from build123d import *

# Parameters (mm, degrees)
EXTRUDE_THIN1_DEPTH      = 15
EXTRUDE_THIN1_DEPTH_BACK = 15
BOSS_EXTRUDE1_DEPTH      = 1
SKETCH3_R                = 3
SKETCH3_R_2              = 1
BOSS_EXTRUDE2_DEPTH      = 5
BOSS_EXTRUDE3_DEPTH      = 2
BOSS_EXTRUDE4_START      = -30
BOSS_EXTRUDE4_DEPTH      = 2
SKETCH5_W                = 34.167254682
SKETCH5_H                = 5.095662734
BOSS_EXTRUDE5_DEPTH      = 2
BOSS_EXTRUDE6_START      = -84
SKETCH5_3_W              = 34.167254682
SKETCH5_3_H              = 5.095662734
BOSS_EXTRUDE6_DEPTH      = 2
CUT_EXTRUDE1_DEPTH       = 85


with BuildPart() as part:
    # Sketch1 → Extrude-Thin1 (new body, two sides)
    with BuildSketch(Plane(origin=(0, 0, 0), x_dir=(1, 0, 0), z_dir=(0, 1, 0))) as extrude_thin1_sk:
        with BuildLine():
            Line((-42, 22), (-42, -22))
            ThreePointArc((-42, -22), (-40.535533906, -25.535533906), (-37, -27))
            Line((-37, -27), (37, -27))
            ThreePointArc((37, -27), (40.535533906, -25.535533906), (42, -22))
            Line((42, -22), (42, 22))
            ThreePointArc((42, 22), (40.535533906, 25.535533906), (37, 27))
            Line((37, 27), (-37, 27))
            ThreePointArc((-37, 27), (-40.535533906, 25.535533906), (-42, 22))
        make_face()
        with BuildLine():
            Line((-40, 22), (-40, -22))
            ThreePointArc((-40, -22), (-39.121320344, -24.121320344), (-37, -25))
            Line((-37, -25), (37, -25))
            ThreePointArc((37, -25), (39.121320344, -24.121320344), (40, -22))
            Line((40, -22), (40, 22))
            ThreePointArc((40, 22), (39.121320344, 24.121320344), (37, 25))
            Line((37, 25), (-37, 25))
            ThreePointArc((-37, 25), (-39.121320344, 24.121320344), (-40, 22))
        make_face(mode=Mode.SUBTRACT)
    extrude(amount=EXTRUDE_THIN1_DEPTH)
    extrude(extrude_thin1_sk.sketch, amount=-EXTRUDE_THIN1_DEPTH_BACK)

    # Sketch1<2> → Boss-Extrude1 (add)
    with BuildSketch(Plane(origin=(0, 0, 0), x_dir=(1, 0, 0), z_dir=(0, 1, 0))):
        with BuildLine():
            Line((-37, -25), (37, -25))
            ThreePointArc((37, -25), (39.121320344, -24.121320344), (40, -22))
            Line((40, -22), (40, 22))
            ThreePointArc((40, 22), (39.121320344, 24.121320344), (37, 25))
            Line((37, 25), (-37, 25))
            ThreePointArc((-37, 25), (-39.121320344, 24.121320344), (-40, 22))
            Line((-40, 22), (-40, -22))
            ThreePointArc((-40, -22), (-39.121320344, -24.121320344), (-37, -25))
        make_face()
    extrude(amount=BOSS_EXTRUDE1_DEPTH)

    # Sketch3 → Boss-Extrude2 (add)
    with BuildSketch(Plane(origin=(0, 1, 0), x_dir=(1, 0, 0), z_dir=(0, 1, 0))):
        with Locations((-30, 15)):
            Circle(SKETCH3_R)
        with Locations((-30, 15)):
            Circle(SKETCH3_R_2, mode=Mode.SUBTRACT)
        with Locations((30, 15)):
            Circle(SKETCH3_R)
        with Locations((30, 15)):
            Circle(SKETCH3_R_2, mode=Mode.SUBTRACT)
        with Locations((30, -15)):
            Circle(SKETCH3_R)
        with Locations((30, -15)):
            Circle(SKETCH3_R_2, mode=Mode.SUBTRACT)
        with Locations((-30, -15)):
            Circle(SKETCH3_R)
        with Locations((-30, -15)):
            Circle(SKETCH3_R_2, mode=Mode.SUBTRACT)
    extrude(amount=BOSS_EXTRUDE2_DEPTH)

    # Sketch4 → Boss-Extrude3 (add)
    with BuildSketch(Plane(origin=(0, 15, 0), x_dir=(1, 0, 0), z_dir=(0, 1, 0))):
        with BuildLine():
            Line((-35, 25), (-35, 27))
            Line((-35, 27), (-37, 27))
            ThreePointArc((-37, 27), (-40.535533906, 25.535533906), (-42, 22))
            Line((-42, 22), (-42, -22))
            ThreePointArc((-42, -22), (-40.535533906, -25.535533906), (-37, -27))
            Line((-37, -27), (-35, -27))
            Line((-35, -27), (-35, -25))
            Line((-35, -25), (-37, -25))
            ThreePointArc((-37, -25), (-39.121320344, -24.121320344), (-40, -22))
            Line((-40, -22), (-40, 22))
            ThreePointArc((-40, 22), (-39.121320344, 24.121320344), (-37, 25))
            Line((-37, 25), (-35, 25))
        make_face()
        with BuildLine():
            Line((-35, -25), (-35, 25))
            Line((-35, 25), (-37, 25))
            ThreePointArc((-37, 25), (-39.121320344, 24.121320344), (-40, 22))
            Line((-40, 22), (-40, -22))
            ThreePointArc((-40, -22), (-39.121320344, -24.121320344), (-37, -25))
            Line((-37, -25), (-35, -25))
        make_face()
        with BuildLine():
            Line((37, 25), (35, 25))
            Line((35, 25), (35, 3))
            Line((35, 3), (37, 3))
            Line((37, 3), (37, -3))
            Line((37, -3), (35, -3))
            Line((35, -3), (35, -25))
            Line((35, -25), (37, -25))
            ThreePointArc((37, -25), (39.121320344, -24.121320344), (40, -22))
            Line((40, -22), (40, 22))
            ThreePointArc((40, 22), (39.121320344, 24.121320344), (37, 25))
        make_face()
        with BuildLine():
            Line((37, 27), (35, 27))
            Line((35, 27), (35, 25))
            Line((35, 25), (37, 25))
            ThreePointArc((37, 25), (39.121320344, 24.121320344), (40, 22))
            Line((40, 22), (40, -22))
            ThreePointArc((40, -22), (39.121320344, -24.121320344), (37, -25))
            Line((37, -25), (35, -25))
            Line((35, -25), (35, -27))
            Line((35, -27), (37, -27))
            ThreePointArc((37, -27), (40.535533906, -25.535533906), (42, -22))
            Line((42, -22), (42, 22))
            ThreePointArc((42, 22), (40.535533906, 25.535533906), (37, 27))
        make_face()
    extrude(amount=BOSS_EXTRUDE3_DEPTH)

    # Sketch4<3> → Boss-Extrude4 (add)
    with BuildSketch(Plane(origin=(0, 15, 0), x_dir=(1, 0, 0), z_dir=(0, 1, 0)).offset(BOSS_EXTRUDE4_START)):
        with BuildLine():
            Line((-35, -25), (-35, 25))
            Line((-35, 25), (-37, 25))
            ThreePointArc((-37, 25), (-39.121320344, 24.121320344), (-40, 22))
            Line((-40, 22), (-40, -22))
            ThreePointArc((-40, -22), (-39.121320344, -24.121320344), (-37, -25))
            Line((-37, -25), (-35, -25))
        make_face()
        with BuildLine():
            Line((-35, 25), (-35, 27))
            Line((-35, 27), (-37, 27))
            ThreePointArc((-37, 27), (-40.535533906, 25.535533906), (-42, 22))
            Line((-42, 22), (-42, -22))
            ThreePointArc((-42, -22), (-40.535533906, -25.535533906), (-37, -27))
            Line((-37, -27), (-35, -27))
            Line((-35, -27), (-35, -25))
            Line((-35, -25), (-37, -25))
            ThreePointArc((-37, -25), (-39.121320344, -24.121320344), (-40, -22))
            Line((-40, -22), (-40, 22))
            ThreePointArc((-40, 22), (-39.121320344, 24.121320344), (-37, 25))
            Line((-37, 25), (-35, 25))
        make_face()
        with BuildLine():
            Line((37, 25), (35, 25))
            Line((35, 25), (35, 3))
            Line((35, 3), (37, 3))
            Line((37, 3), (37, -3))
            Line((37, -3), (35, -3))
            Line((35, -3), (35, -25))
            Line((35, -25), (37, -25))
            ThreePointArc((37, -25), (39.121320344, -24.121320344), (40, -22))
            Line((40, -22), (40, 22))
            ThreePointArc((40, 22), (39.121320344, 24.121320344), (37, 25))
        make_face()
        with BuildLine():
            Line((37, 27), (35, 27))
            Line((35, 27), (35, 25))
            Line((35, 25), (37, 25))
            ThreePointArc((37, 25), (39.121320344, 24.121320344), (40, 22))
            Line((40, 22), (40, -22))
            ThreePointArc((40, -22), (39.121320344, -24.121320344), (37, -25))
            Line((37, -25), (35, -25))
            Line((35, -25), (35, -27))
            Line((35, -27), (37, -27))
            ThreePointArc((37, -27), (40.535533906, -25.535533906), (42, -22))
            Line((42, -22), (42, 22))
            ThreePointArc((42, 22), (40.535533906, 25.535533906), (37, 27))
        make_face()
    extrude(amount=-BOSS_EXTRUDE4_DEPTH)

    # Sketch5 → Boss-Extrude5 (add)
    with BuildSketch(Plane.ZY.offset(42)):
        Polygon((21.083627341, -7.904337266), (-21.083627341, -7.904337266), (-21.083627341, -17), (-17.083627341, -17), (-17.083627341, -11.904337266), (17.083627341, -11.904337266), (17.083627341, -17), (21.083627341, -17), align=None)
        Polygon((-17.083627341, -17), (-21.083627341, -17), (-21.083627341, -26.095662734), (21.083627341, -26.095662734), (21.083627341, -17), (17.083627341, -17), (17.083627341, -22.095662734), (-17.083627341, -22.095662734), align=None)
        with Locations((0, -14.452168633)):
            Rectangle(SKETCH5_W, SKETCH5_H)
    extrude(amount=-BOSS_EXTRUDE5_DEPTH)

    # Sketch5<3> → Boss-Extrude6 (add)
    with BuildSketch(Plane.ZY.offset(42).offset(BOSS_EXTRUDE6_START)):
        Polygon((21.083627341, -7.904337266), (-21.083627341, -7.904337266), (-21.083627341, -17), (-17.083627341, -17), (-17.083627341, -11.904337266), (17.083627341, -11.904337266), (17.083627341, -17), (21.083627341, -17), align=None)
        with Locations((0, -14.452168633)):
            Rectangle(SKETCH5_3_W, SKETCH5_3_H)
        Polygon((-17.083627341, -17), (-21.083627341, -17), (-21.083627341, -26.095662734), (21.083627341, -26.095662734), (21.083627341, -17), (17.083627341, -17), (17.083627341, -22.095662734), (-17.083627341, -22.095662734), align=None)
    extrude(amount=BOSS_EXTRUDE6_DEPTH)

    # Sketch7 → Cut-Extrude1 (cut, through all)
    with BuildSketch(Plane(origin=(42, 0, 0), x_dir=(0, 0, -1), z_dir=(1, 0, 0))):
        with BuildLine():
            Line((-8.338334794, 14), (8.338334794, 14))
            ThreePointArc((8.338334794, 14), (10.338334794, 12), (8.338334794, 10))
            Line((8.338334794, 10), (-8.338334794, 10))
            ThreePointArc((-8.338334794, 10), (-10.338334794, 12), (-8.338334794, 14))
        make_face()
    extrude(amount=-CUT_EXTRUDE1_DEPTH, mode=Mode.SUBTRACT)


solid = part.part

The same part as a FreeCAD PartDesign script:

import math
import FreeCAD as App
import Part
import Sketcher
from FreeCAD import Vector
Q = App.Units.Quantity


def add_polygon(sketch, points):
    """Adds a closed chain of lines whose ends are joined by coincident constraints."""
    first, n = sketch.GeometryCount, len(points)
    for a, b in zip(points, points[1:] + points[:1]):
        sketch.addGeometry(Part.LineSegment(App.Vector(*a, 0), App.Vector(*b, 0)), False)
    for i in range(n):
        sketch.addConstraint(Sketcher.Constraint("Coincident", first + i, 2, first + (i + 1) % n, 1))

doc = App.newDocument("Part")
body = doc.addObject("PartDesign::Body", "Body")

sketch1 = body.newObject("Sketcher::SketchObject", "Sketch")
sketch1.AttachmentSupport = (doc.getObject("XZ_Plane"), [""])
sketch1.MapMode = "FlatFace"
sketch1.addGeometry(Part.LineSegment(Vector(-42, -22, 0), Vector(-42, 22, 0)), False)
sketch1.addGeometry(Part.ArcOfCircle(Part.Circle(Vector(-37, 22, 0), Vector(0, 0, 1), 5), math.radians(90), math.radians(180)), False)
sketch1.addGeometry(Part.LineSegment(Vector(-37, 27, 0), Vector(37, 27, 0)), False)
sketch1.addGeometry(Part.ArcOfCircle(Part.Circle(Vector(37, 22, 0), Vector(0, 0, 1), 5), math.radians(0), math.radians(90)), False)
sketch1.addGeometry(Part.LineSegment(Vector(42, 22, 0), Vector(42, -22, 0)), False)
sketch1.addGeometry(Part.ArcOfCircle(Part.Circle(Vector(37, -22, 0), Vector(0, 0, 1), 5), math.radians(-90), math.radians(0)), False)
sketch1.addGeometry(Part.LineSegment(Vector(37, -27, 0), Vector(-37, -27, 0)), False)
sketch1.addGeometry(Part.ArcOfCircle(Part.Circle(Vector(-37, -22, 0), Vector(0, 0, 1), 5), math.radians(180), math.radians(270)), False)
sketch1.addGeometry(Part.LineSegment(Vector(-40, 22, 0), Vector(-40, -22, 0)), False)
sketch1.addGeometry(Part.ArcOfCircle(Part.Circle(Vector(-37, -22, 0), Vector(0, 0, 1), 3), math.radians(180), math.radians(270)), False)
sketch1.addGeometry(Part.LineSegment(Vector(-37, -25, 0), Vector(37, -25, 0)), False)
sketch1.addGeometry(Part.ArcOfCircle(Part.Circle(Vector(37, -22, 0), Vector(0, 0, 1), 3), math.radians(-90), math.radians(0)), False)
sketch1.addGeometry(Part.LineSegment(Vector(40, -22, 0), Vector(40, 22, 0)), False)
sketch1.addGeometry(Part.ArcOfCircle(Part.Circle(Vector(37, 22, 0), Vector(0, 0, 1), 3), math.radians(0), math.radians(90)), False)
sketch1.addGeometry(Part.LineSegment(Vector(37, 25, 0), Vector(-37, 25, 0)), False)
sketch1.addGeometry(Part.ArcOfCircle(Part.Circle(Vector(-37, 22, 0), Vector(0, 0, 1), 3), math.radians(90), math.radians(180)), False)
sketch1.addConstraint(Sketcher.Constraint("Tangent", 0, 2, 1, 2))
sketch1.addConstraint(Sketcher.Constraint("Tangent", 1, 1, 2, 1))
sketch1.addConstraint(Sketcher.Constraint("Tangent", 2, 2, 3, 2))
sketch1.addConstraint(Sketcher.Constraint("Tangent", 3, 1, 4, 1))
sketch1.addConstraint(Sketcher.Constraint("Tangent", 4, 2, 5, 2))
sketch1.addConstraint(Sketcher.Constraint("Tangent", 5, 1, 6, 1))
sketch1.addConstraint(Sketcher.Constraint("Tangent", 6, 2, 7, 2))
sketch1.addConstraint(Sketcher.Constraint("Tangent", 7, 1, 0, 1))
sketch1.addConstraint(Sketcher.Constraint("Tangent", 8, 2, 9, 1))
sketch1.addConstraint(Sketcher.Constraint("Tangent", 9, 2, 10, 1))
sketch1.addConstraint(Sketcher.Constraint("Tangent", 10, 2, 11, 1))
sketch1.addConstraint(Sketcher.Constraint("Tangent", 11, 2, 12, 1))
sketch1.addConstraint(Sketcher.Constraint("Tangent", 12, 2, 13, 1))
sketch1.addConstraint(Sketcher.Constraint("Tangent", 13, 2, 14, 1))
sketch1.addConstraint(Sketcher.Constraint("Tangent", 14, 2, 15, 1))
sketch1.addConstraint(Sketcher.Constraint("Tangent", 15, 2, 8, 1))
sketch1.addConstraint(Sketcher.Constraint("Vertical", 0))
sketch1.addConstraint(Sketcher.Constraint("Horizontal", 2))
sketch1.addConstraint(Sketcher.Constraint("Vertical", 4))
sketch1.addConstraint(Sketcher.Constraint("Horizontal", 6))
sketch1.addConstraint(Sketcher.Constraint("Vertical", 8))
sketch1.addConstraint(Sketcher.Constraint("Horizontal", 10))
sketch1.addConstraint(Sketcher.Constraint("Vertical", 12))
sketch1.addConstraint(Sketcher.Constraint("Horizontal", 14))
sketch1.addConstraint(Sketcher.Constraint("Coincident", 9, 3, 7, 3))
sketch1.addConstraint(Sketcher.Constraint("Coincident", 11, 3, 5, 3))
sketch1.addConstraint(Sketcher.Constraint("Coincident", 13, 3, 3, 3))
sketch1.addConstraint(Sketcher.Constraint("Equal", 1, 3))
sketch1.addConstraint(Sketcher.Constraint("Equal", 3, 5))
sketch1.addConstraint(Sketcher.Constraint("Equal", 5, 7))
sketch1.addConstraint(Sketcher.Constraint("Equal", 13, 15))
sketch1.addConstraint(Sketcher.Constraint("Symmetric", 1, 3, 5, 3, -1, 1))
sketch1.addConstraint(Sketcher.Constraint("Radius", 1, Q("5 mm")))
sketch1.addConstraint(Sketcher.Constraint("Radius", 9, Q("3 mm")))
sketch1.addConstraint(Sketcher.Constraint("DistanceX", 2, 1, 2, 2, Q("74 mm")))
sketch1.addConstraint(Sketcher.Constraint("DistanceY", 0, 1, 0, 2, Q("44 mm")))
pad1 = body.newObject("PartDesign::Pad", "Pad")
pad1.Profile = sketch1
pad1.Type = "TwoLengths"
pad1.Length = 15
pad1.Length2 = 15
pad1.Reversed = True

sketch2 = body.newObject("Sketcher::SketchObject", "Sketch001")
sketch2.AttachmentSupport = (doc.getObject("XZ_Plane"), [""])
sketch2.MapMode = "FlatFace"
sketch2.addGeometry(Part.LineSegment(Vector(-37, 25, 0), Vector(37, 25, 0)), False)
sketch2.addGeometry(Part.ArcOfCircle(Part.Circle(Vector(37, 22, 0), Vector(0, 0, 1), 3), math.radians(0), math.radians(90)), False)
sketch2.addGeometry(Part.LineSegment(Vector(40, 22, 0), Vector(40, -22, 0)), False)
sketch2.addGeometry(Part.ArcOfCircle(Part.Circle(Vector(37, -22, 0), Vector(0, 0, 1), 3), math.radians(-90), math.radians(0)), False)
sketch2.addGeometry(Part.LineSegment(Vector(37, -25, 0), Vector(-37, -25, 0)), False)
sketch2.addGeometry(Part.ArcOfCircle(Part.Circle(Vector(-37, -22, 0), Vector(0, 0, 1), 3), math.radians(180), math.radians(270)), False)
sketch2.addGeometry(Part.LineSegment(Vector(-40, -22, 0), Vector(-40, 22, 0)), False)
sketch2.addGeometry(Part.ArcOfCircle(Part.Circle(Vector(-37, 22, 0), Vector(0, 0, 1), 3), math.radians(90), math.radians(180)), False)
sketch2.addConstraint(Sketcher.Constraint("Tangent", 0, 2, 1, 2))
sketch2.addConstraint(Sketcher.Constraint("Tangent", 1, 1, 2, 1))
sketch2.addConstraint(Sketcher.Constraint("Tangent", 2, 2, 3, 2))
sketch2.addConstraint(Sketcher.Constraint("Tangent", 3, 1, 4, 1))
sketch2.addConstraint(Sketcher.Constraint("Tangent", 4, 2, 5, 2))
sketch2.addConstraint(Sketcher.Constraint("Tangent", 5, 1, 6, 1))
sketch2.addConstraint(Sketcher.Constraint("Tangent", 6, 2, 7, 2))
sketch2.addConstraint(Sketcher.Constraint("Tangent", 7, 1, 0, 1))
sketch2.addConstraint(Sketcher.Constraint("Horizontal", 0))
sketch2.addConstraint(Sketcher.Constraint("Vertical", 2))
sketch2.addConstraint(Sketcher.Constraint("Horizontal", 4))
sketch2.addConstraint(Sketcher.Constraint("Vertical", 6))
sketch2.addConstraint(Sketcher.Constraint("Equal", 1, 3))
sketch2.addConstraint(Sketcher.Constraint("Equal", 3, 5))
sketch2.addConstraint(Sketcher.Constraint("Equal", 5, 7))
sketch2.addConstraint(Sketcher.Constraint("Symmetric", 1, 3, 5, 3, -1, 1))
sketch2.addConstraint(Sketcher.Constraint("Radius", 1, Q("3 mm")))
sketch2.addConstraint(Sketcher.Constraint("DistanceX", 0, 1, 0, 2, Q("74 mm")))
sketch2.addConstraint(Sketcher.Constraint("DistanceY", 2, 2, 2, 1, Q("44 mm")))
pad2 = body.newObject("PartDesign::Pad", "Pad001")
pad2.Profile = sketch2
pad2.Length = 1
pad2.Reversed = True

sketch3 = body.newObject("Sketcher::SketchObject", "Sketch002")
sketch3.AttachmentSupport = (doc.getObject("XZ_Plane"), [""])
sketch3.MapMode = "FlatFace"
sketch3.AttachmentOffset = App.Placement(Vector(0, 0, -1), App.Rotation())
sketch3.addGeometry(Part.Circle(Vector(-30, -15, 0), Vector(0, 0, 1), 3), False)
sketch3.addGeometry(Part.Circle(Vector(-30, -15, 0), Vector(0, 0, 1), 1), False)
sketch3.addGeometry(Part.Circle(Vector(30, -15, 0), Vector(0, 0, 1), 3), False)
sketch3.addGeometry(Part.Circle(Vector(30, -15, 0), Vector(0, 0, 1), 1), False)
sketch3.addGeometry(Part.Circle(Vector(30, 15, 0), Vector(0, 0, 1), 3), False)
sketch3.addGeometry(Part.Circle(Vector(30, 15, 0), Vector(0, 0, 1), 1), False)
sketch3.addGeometry(Part.Circle(Vector(-30, 15, 0), Vector(0, 0, 1), 3), False)
sketch3.addGeometry(Part.Circle(Vector(-30, 15, 0), Vector(0, 0, 1), 1), False)
sketch3.addConstraint(Sketcher.Constraint("Coincident", 1, 3, 0, 3))
sketch3.addConstraint(Sketcher.Constraint("Coincident", 3, 3, 2, 3))
sketch3.addConstraint(Sketcher.Constraint("Coincident", 5, 3, 4, 3))
sketch3.addConstraint(Sketcher.Constraint("Coincident", 7, 3, 6, 3))
sketch3.addConstraint(Sketcher.Constraint("Equal", 0, 2))
sketch3.addConstraint(Sketcher.Constraint("Equal", 1, 3))
sketch3.addConstraint(Sketcher.Constraint("Equal", 2, 4))
sketch3.addConstraint(Sketcher.Constraint("Equal", 3, 5))
sketch3.addConstraint(Sketcher.Constraint("Equal", 4, 6))
sketch3.addConstraint(Sketcher.Constraint("Equal", 5, 7))
sketch3.addConstraint(Sketcher.Constraint("Symmetric", 0, 3, 4, 3, -1, 1))
sketch3.addConstraint(Sketcher.Constraint("Symmetric", 2, 3, 6, 3, -1, 1))
sketch3.addConstraint(Sketcher.Constraint("Symmetric", 0, 3, 2, 3, -2))
sketch3.addConstraint(Sketcher.Constraint("Diameter", 0, Q("6 mm")))
sketch3.addConstraint(Sketcher.Constraint("Diameter", 1, Q("2 mm")))
sketch3.addConstraint(Sketcher.Constraint("DistanceX", 0, 3, -1, 1, Q("30 mm")))
sketch3.addConstraint(Sketcher.Constraint("DistanceY", 0, 3, -1, 1, Q("15 mm")))
pad3 = body.newObject("PartDesign::Pad", "Pad002")
pad3.Profile = sketch3
pad3.Length = 5
pad3.Reversed = True

sketch4 = body.newObject("Sketcher::SketchObject", "Sketch003")
sketch4.AttachmentSupport = (doc.getObject("XZ_Plane"), [""])
sketch4.MapMode = "FlatFace"
sketch4.AttachmentOffset = App.Placement(Vector(0, 0, -15), App.Rotation())
sketch4.addGeometry(Part.LineSegment(Vector(-35, -27, 0), Vector(-37, -27, 0)), False)
sketch4.addGeometry(Part.ArcOfCircle(Part.Circle(Vector(-37, -22, 0), Vector(0, 0, 1), 5), math.radians(180), math.radians(270)), False)
sketch4.addGeometry(Part.LineSegment(Vector(-42, -22, 0), Vector(-42, 22, 0)), False)
sketch4.addGeometry(Part.ArcOfCircle(Part.Circle(Vector(-37, 22, 0), Vector(0, 0, 1), 5), math.radians(90), math.radians(180)), False)
sketch4.addGeometry(Part.LineSegment(Vector(-37, 27, 0), Vector(-35, 27, 0)), False)
sketch4.addGeometry(Part.LineSegment(Vector(-35, 27, 0), Vector(-35, -27, 0)), False)
sketch4.addGeometry(Part.LineSegment(Vector(35, -3, 0), Vector(37, -3, 0)), False)
sketch4.addGeometry(Part.LineSegment(Vector(37, -3, 0), Vector(37, 3, 0)), False)
sketch4.addGeometry(Part.LineSegment(Vector(37, 3, 0), Vector(35, 3, 0)), False)
sketch4.addGeometry(Part.LineSegment(Vector(35, 3, 0), Vector(35, 27, 0)), False)
sketch4.addGeometry(Part.LineSegment(Vector(35, 27, 0), Vector(37, 27, 0)), False)
sketch4.addGeometry(Part.ArcOfCircle(Part.Circle(Vector(37, 22, 0), Vector(0, 0, 1), 5), math.radians(0), math.radians(90)), False)
sketch4.addGeometry(Part.LineSegment(Vector(42, 22, 0), Vector(42, -22, 0)), False)
sketch4.addGeometry(Part.ArcOfCircle(Part.Circle(Vector(37, -22, 0), Vector(0, 0, 1), 5), math.radians(-90), math.radians(0)), False)
sketch4.addGeometry(Part.LineSegment(Vector(37, -27, 0), Vector(35, -27, 0)), False)
sketch4.addGeometry(Part.LineSegment(Vector(35, -27, 0), Vector(35, -3, 0)), False)
sketch4.addConstraint(Sketcher.Constraint("Tangent", 0, 2, 1, 2))
sketch4.addConstraint(Sketcher.Constraint("Tangent", 1, 1, 2, 1))
sketch4.addConstraint(Sketcher.Constraint("Tangent", 2, 2, 3, 2))
sketch4.addConstraint(Sketcher.Constraint("Tangent", 3, 1, 4, 1))
sketch4.addConstraint(Sketcher.Constraint("Coincident", 4, 2, 5, 1))
sketch4.addConstraint(Sketcher.Constraint("Coincident", 5, 2, 0, 1))
sketch4.addConstraint(Sketcher.Constraint("Coincident", 6, 2, 7, 1))
sketch4.addConstraint(Sketcher.Constraint("Coincident", 7, 2, 8, 1))
sketch4.addConstraint(Sketcher.Constraint("Coincident", 8, 2, 9, 1))
sketch4.addConstraint(Sketcher.Constraint("Coincident", 9, 2, 10, 1))
sketch4.addConstraint(Sketcher.Constraint("Tangent", 10, 2, 11, 2))
sketch4.addConstraint(Sketcher.Constraint("Tangent", 11, 1, 12, 1))
sketch4.addConstraint(Sketcher.Constraint("Tangent", 12, 2, 13, 2))
sketch4.addConstraint(Sketcher.Constraint("Tangent", 13, 1, 14, 1))
sketch4.addConstraint(Sketcher.Constraint("Coincident", 14, 2, 15, 1))
sketch4.addConstraint(Sketcher.Constraint("Coincident", 15, 2, 6, 1))
sketch4.addConstraint(Sketcher.Constraint("Horizontal", 0))
sketch4.addConstraint(Sketcher.Constraint("Vertical", 2))
sketch4.addConstraint(Sketcher.Constraint("Horizontal", 4))
sketch4.addConstraint(Sketcher.Constraint("Vertical", 5))
sketch4.addConstraint(Sketcher.Constraint("Horizontal", 6))
sketch4.addConstraint(Sketcher.Constraint("Vertical", 7))
sketch4.addConstraint(Sketcher.Constraint("Horizontal", 8))
sketch4.addConstraint(Sketcher.Constraint("Vertical", 9))
sketch4.addConstraint(Sketcher.Constraint("Horizontal", 10))
sketch4.addConstraint(Sketcher.Constraint("Vertical", 12))
sketch4.addConstraint(Sketcher.Constraint("Horizontal", 14))
sketch4.addConstraint(Sketcher.Constraint("Vertical", 15))
sketch4.addConstraint(Sketcher.Constraint("Equal", 1, 3))
sketch4.addConstraint(Sketcher.Constraint("Equal", 3, 11))
sketch4.addConstraint(Sketcher.Constraint("Equal", 11, 13))
sketch4.addConstraint(Sketcher.Constraint("Symmetric", 1, 3, 11, 3, -1, 1))
sketch4.addConstraint(Sketcher.Constraint("Symmetric", 4, 2, 14, 2, -1, 1))
sketch4.addConstraint(Sketcher.Constraint("Symmetric", 4, 2, 9, 2, -2))
sketch4.addConstraint(Sketcher.Constraint("Vertical", 13, 3, 6, 2))
sketch4.addConstraint(Sketcher.Constraint("Equal", 9, 15))
sketch4.addConstraint(Sketcher.Constraint("Radius", 1, Q("5 mm")))
sketch4.addConstraint(Sketcher.Constraint("DistanceX", 0, 2, 0, 1, Q("2 mm")))
sketch4.addConstraint(Sketcher.Constraint("DistanceY", 2, 1, 2, 2, Q("44 mm")))
sketch4.addConstraint(Sketcher.Constraint("DistanceY", 7, 1, 7, 2, Q("6 mm")))
sketch4.addConstraint(Sketcher.Constraint("DistanceX", 1, 3, -1, 1, Q("37 mm")))
pad4 = body.newObject("PartDesign::Pad", "Pad003")
pad4.Profile = sketch4
pad4.Length = 2
pad4.Reversed = True

sketch5 = body.newObject("Sketcher::SketchObject", "Sketch004")
sketch5.AttachmentSupport = (doc.getObject("XZ_Plane"), [""])
sketch5.MapMode = "FlatFace"
sketch5.AttachmentOffset = App.Placement(Vector(0, 0, 15), App.Rotation())
sketch5.addGeometry(Part.LineSegment(Vector(-35, -27, 0), Vector(-37, -27, 0)), False)
sketch5.addGeometry(Part.ArcOfCircle(Part.Circle(Vector(-37, -22, 0), Vector(0, 0, 1), 5), math.radians(180), math.radians(270)), False)
sketch5.addGeometry(Part.LineSegment(Vector(-42, -22, 0), Vector(-42, 22, 0)), False)
sketch5.addGeometry(Part.ArcOfCircle(Part.Circle(Vector(-37, 22, 0), Vector(0, 0, 1), 5), math.radians(90), math.radians(180)), False)
sketch5.addGeometry(Part.LineSegment(Vector(-37, 27, 0), Vector(-35, 27, 0)), False)
sketch5.addGeometry(Part.LineSegment(Vector(-35, 27, 0), Vector(-35, -27, 0)), False)
sketch5.addGeometry(Part.LineSegment(Vector(35, -3, 0), Vector(37, -3, 0)), False)
sketch5.addGeometry(Part.LineSegment(Vector(37, -3, 0), Vector(37, 3, 0)), False)
sketch5.addGeometry(Part.LineSegment(Vector(37, 3, 0), Vector(35, 3, 0)), False)
sketch5.addGeometry(Part.LineSegment(Vector(35, 3, 0), Vector(35, 27, 0)), False)
sketch5.addGeometry(Part.LineSegment(Vector(35, 27, 0), Vector(37, 27, 0)), False)
sketch5.addGeometry(Part.ArcOfCircle(Part.Circle(Vector(37, 22, 0), Vector(0, 0, 1), 5), math.radians(0), math.radians(90)), False)
sketch5.addGeometry(Part.LineSegment(Vector(42, 22, 0), Vector(42, -22, 0)), False)
sketch5.addGeometry(Part.ArcOfCircle(Part.Circle(Vector(37, -22, 0), Vector(0, 0, 1), 5), math.radians(-90), math.radians(0)), False)
sketch5.addGeometry(Part.LineSegment(Vector(37, -27, 0), Vector(35, -27, 0)), False)
sketch5.addGeometry(Part.LineSegment(Vector(35, -27, 0), Vector(35, -3, 0)), False)
sketch5.addConstraint(Sketcher.Constraint("Tangent", 0, 2, 1, 2))
sketch5.addConstraint(Sketcher.Constraint("Tangent", 1, 1, 2, 1))
sketch5.addConstraint(Sketcher.Constraint("Tangent", 2, 2, 3, 2))
sketch5.addConstraint(Sketcher.Constraint("Tangent", 3, 1, 4, 1))
sketch5.addConstraint(Sketcher.Constraint("Coincident", 4, 2, 5, 1))
sketch5.addConstraint(Sketcher.Constraint("Coincident", 5, 2, 0, 1))
sketch5.addConstraint(Sketcher.Constraint("Coincident", 6, 2, 7, 1))
sketch5.addConstraint(Sketcher.Constraint("Coincident", 7, 2, 8, 1))
sketch5.addConstraint(Sketcher.Constraint("Coincident", 8, 2, 9, 1))
sketch5.addConstraint(Sketcher.Constraint("Coincident", 9, 2, 10, 1))
sketch5.addConstraint(Sketcher.Constraint("Tangent", 10, 2, 11, 2))
sketch5.addConstraint(Sketcher.Constraint("Tangent", 11, 1, 12, 1))
sketch5.addConstraint(Sketcher.Constraint("Tangent", 12, 2, 13, 2))
sketch5.addConstraint(Sketcher.Constraint("Tangent", 13, 1, 14, 1))
sketch5.addConstraint(Sketcher.Constraint("Coincident", 14, 2, 15, 1))
sketch5.addConstraint(Sketcher.Constraint("Coincident", 15, 2, 6, 1))
sketch5.addConstraint(Sketcher.Constraint("Horizontal", 0))
sketch5.addConstraint(Sketcher.Constraint("Vertical", 2))
sketch5.addConstraint(Sketcher.Constraint("Horizontal", 4))
sketch5.addConstraint(Sketcher.Constraint("Vertical", 5))
sketch5.addConstraint(Sketcher.Constraint("Horizontal", 6))
sketch5.addConstraint(Sketcher.Constraint("Vertical", 7))
sketch5.addConstraint(Sketcher.Constraint("Horizontal", 8))
sketch5.addConstraint(Sketcher.Constraint("Vertical", 9))
sketch5.addConstraint(Sketcher.Constraint("Horizontal", 10))
sketch5.addConstraint(Sketcher.Constraint("Vertical", 12))
sketch5.addConstraint(Sketcher.Constraint("Horizontal", 14))
sketch5.addConstraint(Sketcher.Constraint("Vertical", 15))
sketch5.addConstraint(Sketcher.Constraint("Equal", 1, 3))
sketch5.addConstraint(Sketcher.Constraint("Equal", 3, 11))
sketch5.addConstraint(Sketcher.Constraint("Equal", 11, 13))
sketch5.addConstraint(Sketcher.Constraint("Symmetric", 1, 3, 11, 3, -1, 1))
sketch5.addConstraint(Sketcher.Constraint("Symmetric", 4, 2, 14, 2, -1, 1))
sketch5.addConstraint(Sketcher.Constraint("Symmetric", 4, 2, 9, 2, -2))
sketch5.addConstraint(Sketcher.Constraint("Vertical", 13, 3, 6, 2))
sketch5.addConstraint(Sketcher.Constraint("Equal", 9, 15))
sketch5.addConstraint(Sketcher.Constraint("Radius", 1, Q("5 mm")))
sketch5.addConstraint(Sketcher.Constraint("DistanceX", 0, 2, 0, 1, Q("2 mm")))
sketch5.addConstraint(Sketcher.Constraint("DistanceY", 2, 1, 2, 2, Q("44 mm")))
sketch5.addConstraint(Sketcher.Constraint("DistanceY", 7, 1, 7, 2, Q("6 mm")))
sketch5.addConstraint(Sketcher.Constraint("DistanceX", 1, 3, -1, 1, Q("37 mm")))
pad5 = body.newObject("PartDesign::Pad", "Pad004")
pad5.Profile = sketch5
pad5.Length = 2

sketch6 = body.newObject("Sketcher::SketchObject", "Sketch005")
sketch6.AttachmentSupport = (doc.getObject("YZ_Plane"), [""])
sketch6.MapMode = "FlatFace"
sketch6.AttachmentOffset = App.Placement(Vector(0, 0, -42), App.Rotation())
add_polygon(sketch6, [(-8, 21), (-8, -21), (-26, -21), (-26, 21)])
add_polygon(sketch6, [(-17, 17), (-22, 17), (-22, -17), (-17, -17)])
sketch6.addConstraint(Sketcher.Constraint("Vertical", 0))
sketch6.addConstraint(Sketcher.Constraint("Horizontal", 1))
sketch6.addConstraint(Sketcher.Constraint("Vertical", 2))
sketch6.addConstraint(Sketcher.Constraint("Horizontal", 3))
sketch6.addConstraint(Sketcher.Constraint("Horizontal", 4))
sketch6.addConstraint(Sketcher.Constraint("Vertical", 5))
sketch6.addConstraint(Sketcher.Constraint("Horizontal", 6))
sketch6.addConstraint(Sketcher.Constraint("Vertical", 7))
sketch6.addConstraint(Sketcher.Constraint("DistanceX", 6, 2, -1, 1, Q("17 mm")))
sketch6.addConstraint(Sketcher.Constraint("DistanceX", 2, 2, 4, 2, Q("4 mm")))
sketch6.addConstraint(Sketcher.Constraint("DistanceY", 4, 2, 2, 2, Q("4 mm")))
sketch6.addConstraint(Sketcher.Constraint("DistanceY", 1, 2, 5, 2, Q("4 mm")))
sketch6.addConstraint(Sketcher.Constraint("DistanceX", 1, 2, 1, 1, Q("18.191325 mm")))
sketch6.addConstraint(Sketcher.Constraint("DistanceX", 4, 2, 4, 1, Q("5.095663 mm")))
sketch6.addConstraint(Sketcher.Constraint("DistanceY", 0, 2, 0, 1, Q("42.167255 mm")))
sketch6.addConstraint(Sketcher.Constraint("DistanceY", 0, 2, -1, 1, Q("21.083627 mm")))
pad6 = body.newObject("PartDesign::Pad", "Pad005")
pad6.Profile = sketch6
pad6.Length = 2

sketch7 = body.newObject("Sketcher::SketchObject", "Sketch006")
sketch7.AttachmentSupport = (doc.getObject("YZ_Plane"), [""])
sketch7.MapMode = "FlatFace"
sketch7.AttachmentOffset = App.Placement(Vector(0, 0, 42), App.Rotation())
add_polygon(sketch7, [(-8, 21), (-8, -21), (-26, -21), (-26, 21)])
add_polygon(sketch7, [(-17, -17), (-17, 17), (-22, 17), (-22, -17)])
sketch7.addConstraint(Sketcher.Constraint("Vertical", 0))
sketch7.addConstraint(Sketcher.Constraint("Horizontal", 1))
sketch7.addConstraint(Sketcher.Constraint("Vertical", 2))
sketch7.addConstraint(Sketcher.Constraint("Horizontal", 3))
sketch7.addConstraint(Sketcher.Constraint("Vertical", 4))
sketch7.addConstraint(Sketcher.Constraint("Horizontal", 5))
sketch7.addConstraint(Sketcher.Constraint("Vertical", 6))
sketch7.addConstraint(Sketcher.Constraint("Horizontal", 7))
sketch7.addConstraint(Sketcher.Constraint("DistanceX", 4, 2, -1, 1, Q("17 mm")))
sketch7.addConstraint(Sketcher.Constraint("DistanceY", 4, 2, 2, 2, Q("4 mm")))
sketch7.addConstraint(Sketcher.Constraint("DistanceX", 2, 2, 5, 2, Q("4 mm")))
sketch7.addConstraint(Sketcher.Constraint("DistanceY", 1, 2, 6, 2, Q("4 mm")))
sketch7.addConstraint(Sketcher.Constraint("DistanceX", 1, 2, 1, 1, Q("18.191325 mm")))
sketch7.addConstraint(Sketcher.Constraint("DistanceX", 5, 2, 5, 1, Q("5.095663 mm")))
sketch7.addConstraint(Sketcher.Constraint("DistanceY", 0, 2, 0, 1, Q("42.167255 mm")))
sketch7.addConstraint(Sketcher.Constraint("DistanceY", 0, 2, -1, 1, Q("21.083627 mm")))
pad7 = body.newObject("PartDesign::Pad", "Pad006")
pad7.Profile = sketch7
pad7.Length = 2
pad7.Reversed = True

sketch8 = body.newObject("Sketcher::SketchObject", "Sketch007")
sketch8.AttachmentSupport = (doc.getObject("YZ_Plane"), [""])
sketch8.MapMode = "FlatFace"
sketch8.AttachmentOffset = App.Placement(Vector(0, 0, 42), App.Rotation())
sketch8.addGeometry(Part.LineSegment(Vector(14, -8.3, 0), Vector(14, 8.3, 0)), False)
sketch8.addGeometry(Part.ArcOfCircle(Part.Circle(Vector(12, 8.3, 0), Vector(0, 0, 1), 2), math.radians(0), math.radians(180)), False)
sketch8.addGeometry(Part.LineSegment(Vector(10, 8.3, 0), Vector(10, -8.3, 0)), False)
sketch8.addGeometry(Part.ArcOfCircle(Part.Circle(Vector(12, -8.3, 0), Vector(0, 0, 1), 2), math.radians(180), math.radians(360)), False)
sketch8.addConstraint(Sketcher.Constraint("Tangent", 0, 2, 1, 1))
sketch8.addConstraint(Sketcher.Constraint("Tangent", 1, 2, 2, 1))
sketch8.addConstraint(Sketcher.Constraint("Tangent", 2, 2, 3, 1))
sketch8.addConstraint(Sketcher.Constraint("Tangent", 3, 2, 0, 1))
sketch8.addConstraint(Sketcher.Constraint("Vertical", 0))
sketch8.addConstraint(Sketcher.Constraint("Vertical", 2))
sketch8.addConstraint(Sketcher.Constraint("Radius", 1, Q("2 mm")))
sketch8.addConstraint(Sketcher.Constraint("DistanceX", -1, 1, 1, 3, Q("12 mm")))
sketch8.addConstraint(Sketcher.Constraint("DistanceY", 0, 1, 0, 2, Q("16.67667 mm")))
sketch8.addConstraint(Sketcher.Constraint("DistanceY", -1, 1, 1, 3, Q("8.338335 mm")))
pocket1 = body.newObject("PartDesign::Pocket", "Pocket")
pocket1.Profile = sketch8
pocket1.Type = "ThroughAll"

doc.recompute()
